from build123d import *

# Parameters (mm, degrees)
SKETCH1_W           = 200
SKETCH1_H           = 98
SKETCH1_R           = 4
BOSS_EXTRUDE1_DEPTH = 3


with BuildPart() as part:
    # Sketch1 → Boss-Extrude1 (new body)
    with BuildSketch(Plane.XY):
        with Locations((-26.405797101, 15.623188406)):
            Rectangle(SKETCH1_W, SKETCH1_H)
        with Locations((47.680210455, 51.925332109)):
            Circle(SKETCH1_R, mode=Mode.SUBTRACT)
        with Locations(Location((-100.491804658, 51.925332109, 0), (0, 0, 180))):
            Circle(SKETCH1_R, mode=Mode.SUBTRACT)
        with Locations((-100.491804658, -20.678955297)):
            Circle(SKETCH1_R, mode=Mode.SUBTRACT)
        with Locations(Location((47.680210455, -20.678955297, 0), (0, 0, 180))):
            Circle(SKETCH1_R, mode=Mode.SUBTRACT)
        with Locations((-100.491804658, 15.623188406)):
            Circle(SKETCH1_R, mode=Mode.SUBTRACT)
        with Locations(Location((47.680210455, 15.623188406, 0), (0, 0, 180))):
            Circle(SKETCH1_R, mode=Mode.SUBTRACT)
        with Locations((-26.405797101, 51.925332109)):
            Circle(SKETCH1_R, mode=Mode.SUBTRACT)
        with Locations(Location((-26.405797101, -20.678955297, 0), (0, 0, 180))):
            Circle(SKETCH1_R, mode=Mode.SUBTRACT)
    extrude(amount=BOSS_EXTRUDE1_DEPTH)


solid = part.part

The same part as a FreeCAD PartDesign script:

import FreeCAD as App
import Part
import Sketcher

V = App.Vector


def add_polygon(sketch, points):
    """Adds a closed chain of lines whose ends are joined by coincident constraints."""
    first, n = sketch.GeometryCount, len(points)
    for a, b in zip(points, points[1:] + points[:1]):
        sketch.addGeometry(Part.LineSegment(App.Vector(*a, 0), App.Vector(*b, 0)), False)
    for i in range(n):
        sketch.addConstraint(Sketcher.Constraint("Coincident", first + i, 2, first + (i + 1) % n, 1))

doc = App.newDocument("Part")
body = doc.addObject("PartDesign::Body", "Body")

sketch1 = doc.addObject("Sketcher::SketchObject", "Sketch")
body.addObject(sketch1)
sketch1.AttachmentSupport = (doc.XY_Plane, [""])
sketch1.MapMode = "FlatFace"
add_polygon(sketch1, [(-126.4, 64.6), (-126.4, -33.4), (73.6, -33.4), (73.6, 64.6)])
sketch1.addGeometry(Part.Circle(V(-100.5, -20.7, 0), V(0, 0, 1), 4), False)
sketch1.addGeometry(Part.Circle(V(-26.4, -20.7, 0), V(0, 0, 1), 4), False)
sketch1.addGeometry(Part.Circle(V(47.7, -20.7, 0), V(0, 0, 1), 4), False)
sketch1.addGeometry(Part.Circle(V(-100.5, 15.6, 0), V(0, 0, 1), 4), False)
sketch1.addGeometry(Part.Circle(V(-100.5, 51.9, 0), V(0, 0, 1), 4), False)
sketch1.addGeometry(Part.Circle(V(47.7, 15.6, 0), V(0, 0, 1), 4), False)
sketch1.addGeometry(Part.Circle(V(-26.4, 51.9, 0), V(0, 0, 1), 4), False)
sketch1.addGeometry(Part.Circle(V(47.7, 51.9, 0), V(0, 0, 1), 4), False)
sketch1.addConstraint([
    Sketcher.Constraint("Vertical", 0),
    Sketcher.Constraint("Horizontal", 1),
    Sketcher.Constraint("Vertical", 2),
    Sketcher.Constraint("Horizontal", 3),
    Sketcher.Constraint("Equal", 4, 5),
    Sketcher.Constraint("Equal", 5, 6),
    Sketcher.Constraint("Equal", 6, 7),
    Sketcher.Constraint("Equal", 7, 8),
    Sketcher.Constraint("Equal", 8, 9),
    Sketcher.Constraint("Equal", 9, 10),
    Sketcher.Constraint("Equal", 10, 11),
    Sketcher.Constraint("Horizontal", 4, 3, 5, 3),
    Sketcher.Constraint("Horizontal", 5, 3, 6, 3),
    Sketcher.Constraint("Horizontal", 7, 3, 9, 3),
    Sketcher.Constraint("Horizontal", 8, 3, 10, 3),
    Sketcher.Constraint("Horizontal", 10, 3, 11, 3),
    Sketcher.Constraint("Vertical", 4, 3, 7, 3),
    Sketcher.Constraint("Vertical", 7, 3, 8, 3),
    Sketcher.Constraint("Vertical", 6, 3, 9, 3),
    Sketcher.Constraint("Vertical", 5, 3, 10, 3),
    Sketcher.Constraint("Vertical", 9, 3, 11, 3),
    Sketcher.Constraint("Diameter", 4, 8.0),
    Sketcher.Constraint("DistanceX", 1, 1, 1, 2, 200.0),
    Sketcher.Constraint("DistanceY", 0, 2, 0, 1, 98.0),
    Sketcher.Constraint("DistanceY", 0, 2, 7, 3, 49.0),
    Sketcher.Constraint("DistanceX", 0, 2, 5, 3, 100.0),
    Sketcher.Constraint("DistanceX", -1, 1, 6, 3, 47.68021),
    Sketcher.Constraint("DistanceY", -1, 1, 7, 3, 15.623188),
    Sketcher.Constraint("DistanceX", 4, 3, -1, 1, 100.491805),
    Sketcher.Constraint("DistanceY", 4, 3, -1, 1, 20.678955),
    Sketcher.Constraint("DistanceX", 5, 3, -1, 1, 26.405797),
    Sketcher.Constraint("DistanceY", -1, 1, 8, 3, 51.925332),
])
pad1 = doc.addObject("PartDesign::Pad", "Pad")
body.addObject(pad1)
pad1.Profile = sketch1
pad1.Length = 3

doc.recompute()
